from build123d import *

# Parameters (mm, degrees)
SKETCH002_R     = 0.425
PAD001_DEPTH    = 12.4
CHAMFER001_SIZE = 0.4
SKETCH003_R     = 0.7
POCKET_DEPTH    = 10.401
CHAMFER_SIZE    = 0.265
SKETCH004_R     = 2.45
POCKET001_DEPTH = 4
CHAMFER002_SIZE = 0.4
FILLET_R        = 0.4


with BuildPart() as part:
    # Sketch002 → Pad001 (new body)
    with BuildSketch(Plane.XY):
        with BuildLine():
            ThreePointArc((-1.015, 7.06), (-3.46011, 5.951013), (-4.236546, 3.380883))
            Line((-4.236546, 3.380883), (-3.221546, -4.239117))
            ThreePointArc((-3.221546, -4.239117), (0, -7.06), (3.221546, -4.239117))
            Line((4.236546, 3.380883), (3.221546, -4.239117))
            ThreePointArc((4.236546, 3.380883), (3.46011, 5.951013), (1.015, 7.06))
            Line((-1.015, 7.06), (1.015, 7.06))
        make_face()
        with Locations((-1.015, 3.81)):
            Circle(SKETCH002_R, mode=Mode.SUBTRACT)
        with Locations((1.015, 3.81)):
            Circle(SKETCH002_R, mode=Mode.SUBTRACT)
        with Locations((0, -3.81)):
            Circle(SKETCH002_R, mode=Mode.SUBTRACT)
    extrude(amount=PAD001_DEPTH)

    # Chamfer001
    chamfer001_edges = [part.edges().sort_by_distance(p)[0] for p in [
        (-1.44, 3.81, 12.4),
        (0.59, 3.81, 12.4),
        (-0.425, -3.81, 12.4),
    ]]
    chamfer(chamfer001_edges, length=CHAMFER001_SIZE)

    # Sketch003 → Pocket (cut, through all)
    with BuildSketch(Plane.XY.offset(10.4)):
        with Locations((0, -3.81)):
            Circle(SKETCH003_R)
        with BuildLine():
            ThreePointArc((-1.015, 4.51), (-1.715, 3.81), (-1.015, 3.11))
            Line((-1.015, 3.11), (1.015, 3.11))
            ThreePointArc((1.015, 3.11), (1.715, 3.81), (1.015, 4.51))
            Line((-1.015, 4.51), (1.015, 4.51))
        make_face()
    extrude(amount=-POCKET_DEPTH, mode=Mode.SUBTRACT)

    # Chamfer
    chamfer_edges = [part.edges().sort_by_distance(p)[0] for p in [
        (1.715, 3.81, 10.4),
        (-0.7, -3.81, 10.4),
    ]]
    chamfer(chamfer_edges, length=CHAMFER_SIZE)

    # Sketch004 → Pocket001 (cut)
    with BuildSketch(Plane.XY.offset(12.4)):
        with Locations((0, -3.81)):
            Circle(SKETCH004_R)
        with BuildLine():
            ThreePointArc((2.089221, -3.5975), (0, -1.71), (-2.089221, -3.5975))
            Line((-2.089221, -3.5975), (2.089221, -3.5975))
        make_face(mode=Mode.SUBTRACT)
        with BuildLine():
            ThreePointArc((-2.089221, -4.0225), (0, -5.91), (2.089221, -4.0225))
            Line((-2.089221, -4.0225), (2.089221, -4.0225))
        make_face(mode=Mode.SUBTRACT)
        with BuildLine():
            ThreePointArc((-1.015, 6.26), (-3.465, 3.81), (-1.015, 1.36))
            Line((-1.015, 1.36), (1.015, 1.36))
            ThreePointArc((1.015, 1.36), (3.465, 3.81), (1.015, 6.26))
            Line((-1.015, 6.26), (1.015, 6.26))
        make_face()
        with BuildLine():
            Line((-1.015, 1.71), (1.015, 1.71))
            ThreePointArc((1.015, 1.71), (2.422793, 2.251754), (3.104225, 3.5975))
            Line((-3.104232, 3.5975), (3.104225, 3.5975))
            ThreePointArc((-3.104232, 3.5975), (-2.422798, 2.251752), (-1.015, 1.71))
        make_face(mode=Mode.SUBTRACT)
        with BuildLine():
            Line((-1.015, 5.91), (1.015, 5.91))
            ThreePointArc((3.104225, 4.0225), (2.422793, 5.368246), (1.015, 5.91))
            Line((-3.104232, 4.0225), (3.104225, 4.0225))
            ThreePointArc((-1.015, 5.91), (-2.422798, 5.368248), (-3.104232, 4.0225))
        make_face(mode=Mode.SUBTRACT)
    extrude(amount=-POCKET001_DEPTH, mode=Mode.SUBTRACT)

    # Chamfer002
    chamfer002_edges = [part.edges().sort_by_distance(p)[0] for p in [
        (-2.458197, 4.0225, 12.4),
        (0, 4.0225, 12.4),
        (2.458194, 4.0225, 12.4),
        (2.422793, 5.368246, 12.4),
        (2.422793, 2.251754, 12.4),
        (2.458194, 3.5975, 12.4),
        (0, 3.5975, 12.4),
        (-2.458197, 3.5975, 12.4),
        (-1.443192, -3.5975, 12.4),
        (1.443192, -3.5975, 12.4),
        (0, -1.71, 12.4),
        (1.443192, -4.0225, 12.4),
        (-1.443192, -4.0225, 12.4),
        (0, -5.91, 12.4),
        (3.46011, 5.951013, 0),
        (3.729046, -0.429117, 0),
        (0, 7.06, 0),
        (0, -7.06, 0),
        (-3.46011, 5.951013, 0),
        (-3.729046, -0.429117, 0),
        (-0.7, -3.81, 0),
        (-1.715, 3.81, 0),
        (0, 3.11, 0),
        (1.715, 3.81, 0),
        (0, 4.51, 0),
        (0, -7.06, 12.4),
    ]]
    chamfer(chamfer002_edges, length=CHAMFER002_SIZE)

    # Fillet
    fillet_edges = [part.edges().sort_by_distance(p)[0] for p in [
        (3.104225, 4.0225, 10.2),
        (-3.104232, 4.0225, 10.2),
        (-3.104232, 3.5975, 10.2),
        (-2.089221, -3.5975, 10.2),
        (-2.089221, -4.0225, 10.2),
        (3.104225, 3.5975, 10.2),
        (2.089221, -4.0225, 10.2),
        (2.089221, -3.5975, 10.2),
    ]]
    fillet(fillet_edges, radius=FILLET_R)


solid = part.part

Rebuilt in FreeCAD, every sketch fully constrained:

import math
import FreeCAD as App
import Part
import Sketcher
from FreeCAD import Vector


def edges_at(feature, points):
    """Names of the edges that pass closest to the given points."""
    edges = feature.Shape.Edges
    near = lambda p: min(range(len(edges)), key=lambda i: edges[i].distToShape(Part.Vertex(*p))[0])
    return sorted({f"Edge{near(p) + 1}" for p in points})

doc = App.newDocument("Part")
body = doc.addObject("PartDesign::Body", "Body")

sketch1 = body.newObject("Sketcher::SketchObject", "Sketch")
sketch1.AttachmentSupport = (doc.getObject("XY_Plane"), [""])
sketch1.MapMode = "FlatFace"
sketch1.addGeometry(Part.ArcOfCircle(Part.Circle(Vector(-1.01, 3.81, 0), Vector(0, 0, 1), 3.25), math.radians(90), math.radians(188)), False)
sketch1.addGeometry(Part.LineSegment(Vector(-4.24, 3.38, 0), Vector(-3.22, -4.24, 0)), False)
sketch1.addGeometry(Part.ArcOfCircle(Part.Circle(Vector(0, -3.81, 0), Vector(0, 0, 1), 3.25), math.radians(-172), math.radians(-8)), False)
sketch1.addGeometry(Part.LineSegment(Vector(3.22, -4.24, 0), Vector(4.24, 3.38, 0)), False)
sketch1.addGeometry(Part.ArcOfCircle(Part.Circle(Vector(1.01, 3.81, 0), Vector(0, 0, 1), 3.25), math.radians(-8), math.radians(90)), False)
sketch1.addGeometry(Part.LineSegment(Vector(1.01, 7.06, 0), Vector(-1.01, 7.06, 0)), False)
sketch1.addGeometry(Part.Circle(Vector(0, -3.81, 0), Vector(0, 0, 1), 0.42), False)
sketch1.addGeometry(Part.Circle(Vector(-1.01, 3.81, 0), Vector(0, 0, 1), 0.42), False)
sketch1.addGeometry(Part.Circle(Vector(1.01, 3.81, 0), Vector(0, 0, 1), 0.42), False)
sketch1.addConstraint(Sketcher.Constraint("Tangent", 0, 2, 1, 1))
sketch1.addConstraint(Sketcher.Constraint("Tangent", 1, 2, 2, 1))
sketch1.addConstraint(Sketcher.Constraint("Tangent", 2, 2, 3, 1))
sketch1.addConstraint(Sketcher.Constraint("Tangent", 3, 2, 4, 1))
sketch1.addConstraint(Sketcher.Constraint("Tangent", 4, 2, 5, 1))
sketch1.addConstraint(Sketcher.Constraint("Tangent", 5, 2, 0, 1))
sketch1.addConstraint(Sketcher.Constraint("Horizontal", 5))
sketch1.addConstraint(Sketcher.Constraint("Coincident", 6, 3, 2, 3))
sketch1.addConstraint(Sketcher.Constraint("Coincident", 7, 3, 0, 3))
sketch1.addConstraint(Sketcher.Constraint("Coincident", 8, 3, 4, 3))
sketch1.addConstraint(Sketcher.Constraint("Equal", 0, 2))
sketch1.addConstraint(Sketcher.Constraint("Equal", 2, 4))
sketch1.addConstraint(Sketcher.Constraint("Equal", 6, 7))
sketch1.addConstraint(Sketcher.Constraint("Equal", 7, 8))
sketch1.addConstraint(Sketcher.Constraint("Symmetric", 1, 2, 2, 2, -2))
sketch1.addConstraint(Sketcher.Constraint("Diameter", 6, 0.85))
sketch1.addConstraint(Sketcher.Constraint("Radius", 0, 3.25))
sketch1.addConstraint(Sketcher.Constraint("DistanceX", 5, 2, 5, 1, 2.03))
sketch1.addConstraint(Sketcher.Constraint("DistanceY", -1, 1, 0, 3, 3.81))
sketch1.addConstraint(Sketcher.Constraint("DistanceY", 2, 3, -1, 1, 3.81))
pad1 = body.newObject("PartDesign::Pad", "Pad")
pad1.Profile = sketch1
pad1.Length = 12.4
doc.recompute()

chamfer = body.newObject("PartDesign::Chamfer", "Chamfer")
chamfer.Base = (pad1, edges_at(pad1, [(-1.44, 3.81, 12.4), (0.59, 3.81, 12.4), (-0.425, -3.81, 12.4)]))
chamfer.Size = 0.4

sketch2 = body.newObject("Sketcher::SketchObject", "Sketch001")
sketch2.AttachmentSupport = (doc.getObject("XY_Plane"), [""])
sketch2.MapMode = "FlatFace"
sketch2.AttachmentOffset = App.Placement(Vector(0, 0, 10.4), App.Rotation())
sketch2.addGeometry(Part.Circle(Vector(0, -3.8, 0), Vector(0, 0, 1), 0.7), False)
sketch2.addGeometry(Part.ArcOfCircle(Part.Circle(Vector(-1, 3.8, 0), Vector(0, 0, 1), 0.7), math.radians(90), math.radians(270)), False)
sketch2.addGeometry(Part.LineSegment(Vector(-1, 3.1, 0), Vector(1, 3.1, 0)), False)
sketch2.addGeometry(Part.ArcOfCircle(Part.Circle(Vector(1, 3.8, 0), Vector(0, 0, 1), 0.7), math.radians(-90), math.radians(90)), False)
sketch2.addGeometry(Part.LineSegment(Vector(1, 4.5, 0), Vector(-1, 4.5, 0)), False)
sketch2.addConstraint(Sketcher.Constraint("Tangent", 1, 2, 2, 1))
sketch2.addConstraint(Sketcher.Constraint("Tangent", 2, 2, 3, 1))
sketch2.addConstraint(Sketcher.Constraint("Tangent", 3, 2, 4, 1))
sketch2.addConstraint(Sketcher.Constraint("Tangent", 4, 2, 1, 1))
sketch2.addConstraint(Sketcher.Constraint("Horizontal", 2))
sketch2.addConstraint(Sketcher.Constraint("Horizontal", 4))
sketch2.addConstraint(Sketcher.Constraint("Equal", 0, 1))
sketch2.addConstraint(Sketcher.Constraint("PointOnObject", 0, 3, -2))
sketch2.addConstraint(Sketcher.Constraint("Diameter", 0, 1.4))
sketch2.addConstraint(Sketcher.Constraint("DistanceX", 2, 1, 2, 2, 2.03))
sketch2.addConstraint(Sketcher.Constraint("DistanceY", 0, 3, -1, 1, 3.81))
sketch2.addConstraint(Sketcher.Constraint("DistanceY", -1, 1, 1, 3, 3.81))
sketch2.addConstraint(Sketcher.Constraint("DistanceX", 1, 3, -1, 1, 1.015))
pocket1 = body.newObject("PartDesign::Pocket", "Pocket")
pocket1.Profile = sketch2
pocket1.Type = "ThroughAll"
doc.recompute()

chamfer2 = body.newObject("PartDesign::Chamfer", "Chamfer001")
chamfer2.Base = (pocket1, edges_at(pocket1, [(1.715, 3.81, 10.4), (-0.7, -3.81, 10.4)]))
chamfer2.Size = 0.265

sketch3 = body.newObject("Sketcher::SketchObject", "Sketch002")
sketch3.AttachmentSupport = (doc.getObject("XY_Plane"), [""])
sketch3.MapMode = "FlatFace"
sketch3.AttachmentOffset = App.Placement(Vector(0, 0, 12.4), App.Rotation())
sketch3.addGeometry(Part.Circle(Vector(0, -3.8, 0), Vector(0, 0, 1), 2.5), False)
sketch3.addGeometry(Part.ArcOfCircle(Part.Circle(Vector(0, -3.8, 0), Vector(0, 0, 1), 2.1), math.radians(-174), math.radians(-6)), False)
sketch3.addGeometry(Part.LineSegment(Vector(-2.1, -4, 0), Vector(2.1, -4, 0)), False)
sketch3.addGeometry(Part.ArcOfCircle(Part.Circle(Vector(0, -3.8, 0), Vector(0, 0, 1), 2.1), math.radians(6), math.radians(174)), False)
sketch3.addGeometry(Part.LineSegment(Vector(2.1, -3.6, 0), Vector(-2.1, -3.6, 0)), False)
sketch3.addGeometry(Part.ArcOfCircle(Part.Circle(Vector(-1, 3.8, 0), Vector(0, 0, 1), 2.5), math.radians(90), math.radians(270)), False)
sketch3.addGeometry(Part.LineSegment(Vector(-1, 1.4, 0), Vector(1, 1.4, 0)), False)
sketch3.addGeometry(Part.ArcOfCircle(Part.Circle(Vector(1, 3.8, 0), Vector(0, 0, 1), 2.5), math.radians(-90), math.radians(90)), False)
sketch3.addGeometry(Part.LineSegment(Vector(1, 6.3, 0), Vector(-1, 6.3, 0)), False)
sketch3.addGeometry(Part.LineSegment(Vector(1, 1.7, 0), Vector(-1, 1.7, 0)), False)
sketch3.addGeometry(Part.ArcOfCircle(Part.Circle(Vector(-1, 3.8, 0), Vector(0, 0, 1), 2.1), math.radians(-174), math.radians(-90)), False)
sketch3.addGeometry(Part.LineSegment(Vector(-3.1, 3.6, 0), Vector(3.1, 3.6, 0)), False)
sketch3.addGeometry(Part.ArcOfCircle(Part.Circle(Vector(1, 3.8, 0), Vector(0, 0, 1), 2.1), math.radians(-90), math.radians(-6)), False)
sketch3.addGeometry(Part.ArcOfCircle(Part.Circle(Vector(-1, 3.8, 0), Vector(0, 0, 1), 2.1), math.radians(90), math.radians(174)), False)
sketch3.addGeometry(Part.LineSegment(Vector(-1, 5.9, 0), Vector(1, 5.9, 0)), False)
sketch3.addGeometry(Part.ArcOfCircle(Part.Circle(Vector(1, 3.8, 0), Vector(0, 0, 1), 2.1), math.radians(6), math.radians(90)), False)
sketch3.addGeometry(Part.LineSegment(Vector(3.1, 4, 0), Vector(-3.1, 4, 0)), False)
sketch3.addConstraint(Sketcher.Constraint("Coincident", 1, 1, 2, 1))
sketch3.addConstraint(Sketcher.Constraint("Coincident", 2, 2, 1, 2))
sketch3.addConstraint(Sketcher.Constraint("Coincident", 3, 1, 4, 1))
sketch3.addConstraint(Sketcher.Constraint("Coincident", 4, 2, 3, 2))
sketch3.addConstraint(Sketcher.Constraint("Tangent", 5, 2, 6, 1))
sketch3.addConstraint(Sketcher.Constraint("Tangent", 6, 2, 7, 1))
sketch3.addConstraint(Sketcher.Constraint("Tangent", 7, 2, 8, 1))
sketch3.addConstraint(Sketcher.Constraint("Tangent", 8, 2, 5, 1))
sketch3.addConstraint(Sketcher.Constraint("Coincident", 9, 2, 10, 2))
sketch3.addConstraint(Sketcher.Constraint("Coincident", 10, 1, 11, 1))
sketch3.addConstraint(Sketcher.Constraint("Coincident", 11, 2, 12, 2))
sketch3.addConstraint(Sketcher.Constraint("Tangent", 12, 1, 9, 1))
sketch3.addConstraint(Sketcher.Constraint("Coincident", 13, 1, 14, 1))
sketch3.addConstraint(Sketcher.Constraint("Tangent", 14, 2, 15, 2))
sketch3.addConstraint(Sketcher.Constraint("Coincident", 15, 1, 16, 1))
sketch3.addConstraint(Sketcher.Constraint("Coincident", 16, 2, 13, 2))
sketch3.addConstraint(Sketcher.Constraint("Horizontal", 2))
sketch3.addConstraint(Sketcher.Constraint("Horizontal", 4))
sketch3.addConstraint(Sketcher.Constraint("Horizontal", 6))
sketch3.addConstraint(Sketcher.Constraint("Horizontal", 8))
sketch3.addConstraint(Sketcher.Constraint("Horizontal", 9))
sketch3.addConstraint(Sketcher.Constraint("Horizontal", 11))
sketch3.addConstraint(Sketcher.Constraint("Horizontal", 14))
sketch3.addConstraint(Sketcher.Constraint("Horizontal", 16))
sketch3.addConstraint(Sketcher.Constraint("Coincident", 1, 3, 0, 3))
sketch3.addConstraint(Sketcher.Constraint("Coincident", 3, 3, 0, 3))
sketch3.addConstraint(Sketcher.Constraint("Coincident", 12, 3, 7, 3))
sketch3.addConstraint(Sketcher.Constraint("Coincident", 13, 3, 10, 3))
sketch3.addConstraint(Sketcher.Constraint("Coincident", 15, 3, 7, 3))
sketch3.addConstraint(Sketcher.Constraint("Equal", 1, 3))
sketch3.addConstraint(Sketcher.Constraint("Equal", 0, 5))
sketch3.addConstraint(Sketcher.Constraint("Equal", 3, 10))
sketch3.addConstraint(Sketcher.Constraint("Equal", 10, 12))
sketch3.addConstraint(Sketcher.Constraint("Equal", 12, 13))
sketch3.addConstraint(Sketcher.Constraint("PointOnObject", 0, 3, -2))
sketch3.addConstraint(Sketcher.Constraint("Vertical", 2, 2, 3, 1))
sketch3.addConstraint(Sketcher.Constraint("Vertical", 8, 2, 9, 2))
sketch3.addConstraint(Sketcher.Constraint("Vertical", 9, 2, 13, 1))
sketch3.addConstraint(Sketcher.Constraint("Vertical", 11, 2, 15, 1))
sketch3.addConstraint(Sketcher.Constraint("Diameter", 0, 4.9))
sketch3.addConstraint(Sketcher.Constraint("Radius", 1, 2.1))
sketch3.addConstraint(Sketcher.Constraint("DistanceX", 6, 1, 6, 2, 2.03))
sketch3.addConstraint(Sketcher.Constraint("DistanceY", 0, 3, -1, 1, 3.81))
sketch3.addConstraint(Sketcher.Constraint("DistanceY", -1, 1, 5, 3, 3.81))
sketch3.addConstraint(Sketcher.Constraint("DistanceX", 5, 3, -1, 1, 1.015))
sketch3.addConstraint(Sketcher.Constraint("DistanceY", 2, 2, 3, 1, 0.425))
sketch3.addConstraint(Sketcher.Constraint("DistanceY", 11, 2, 15, 1, 0.425))
sketch3.addConstraint(Sketcher.Constraint("DistanceX", 11, 1, 11, 2, 6.208457))
pocket2 = body.newObject("PartDesign::Pocket", "Pocket001")
pocket2.Profile = sketch3
pocket2.Length = 4
doc.recompute()

chamfer3 = body.newObject("PartDesign::Chamfer", "Chamfer002")
chamfer3.Base = (pocket2, edges_at(pocket2, [
    (-2.458, 4.022, 12.4),
    (0, 4.022, 12.4),
    (2.458, 4.022, 12.4),
    (2.423, 5.368, 12.4),
    (2.423, 2.252, 12.4),
    (2.458, 3.598, 12.4),
    (0, 3.598, 12.4),
    (-2.458, 3.598, 12.4),
    (-1.443, -3.598, 12.4),
    (1.443, -3.598, 12.4),
    (0, -1.71, 12.4),
    (1.443, -4.022, 12.4),
    (-1.443, -4.022, 12.4),
    (0, -5.91, 12.4),
    (3.46, 5.951, 0),
    (3.729, -0.429, 0),
    (0, 7.06, 0),
    (0, -7.06, 0),
    (-3.46, 5.951, 0),
    (-3.729, -0.429, 0),
    (-0.7, -3.81, 0),
    (-1.715, 3.81, 0),
    (0, 3.11, 0),
    (1.715, 3.81, 0),
    (0, 4.51, 0),
    (0, -7.06, 12.4),
]))
chamfer3.Size = 0.4
doc.recompute()

fillet = body.newObject("PartDesign::Fillet", "Fillet")
fillet.Base = (chamfer3, edges_at(chamfer3, [
    (3.104, 4.022, 10.2),
    (-3.104, 4.022, 10.2),
    (-3.104, 3.598, 10.2),
    (-2.089, -3.598, 10.2),
    (-2.089, -4.022, 10.2),
    (3.104, 3.598, 10.2),
    (2.089, -4.022, 10.2),
    (2.089, -3.598, 10.2),
]))
fillet.Radius = 0.4

doc.recompute()
